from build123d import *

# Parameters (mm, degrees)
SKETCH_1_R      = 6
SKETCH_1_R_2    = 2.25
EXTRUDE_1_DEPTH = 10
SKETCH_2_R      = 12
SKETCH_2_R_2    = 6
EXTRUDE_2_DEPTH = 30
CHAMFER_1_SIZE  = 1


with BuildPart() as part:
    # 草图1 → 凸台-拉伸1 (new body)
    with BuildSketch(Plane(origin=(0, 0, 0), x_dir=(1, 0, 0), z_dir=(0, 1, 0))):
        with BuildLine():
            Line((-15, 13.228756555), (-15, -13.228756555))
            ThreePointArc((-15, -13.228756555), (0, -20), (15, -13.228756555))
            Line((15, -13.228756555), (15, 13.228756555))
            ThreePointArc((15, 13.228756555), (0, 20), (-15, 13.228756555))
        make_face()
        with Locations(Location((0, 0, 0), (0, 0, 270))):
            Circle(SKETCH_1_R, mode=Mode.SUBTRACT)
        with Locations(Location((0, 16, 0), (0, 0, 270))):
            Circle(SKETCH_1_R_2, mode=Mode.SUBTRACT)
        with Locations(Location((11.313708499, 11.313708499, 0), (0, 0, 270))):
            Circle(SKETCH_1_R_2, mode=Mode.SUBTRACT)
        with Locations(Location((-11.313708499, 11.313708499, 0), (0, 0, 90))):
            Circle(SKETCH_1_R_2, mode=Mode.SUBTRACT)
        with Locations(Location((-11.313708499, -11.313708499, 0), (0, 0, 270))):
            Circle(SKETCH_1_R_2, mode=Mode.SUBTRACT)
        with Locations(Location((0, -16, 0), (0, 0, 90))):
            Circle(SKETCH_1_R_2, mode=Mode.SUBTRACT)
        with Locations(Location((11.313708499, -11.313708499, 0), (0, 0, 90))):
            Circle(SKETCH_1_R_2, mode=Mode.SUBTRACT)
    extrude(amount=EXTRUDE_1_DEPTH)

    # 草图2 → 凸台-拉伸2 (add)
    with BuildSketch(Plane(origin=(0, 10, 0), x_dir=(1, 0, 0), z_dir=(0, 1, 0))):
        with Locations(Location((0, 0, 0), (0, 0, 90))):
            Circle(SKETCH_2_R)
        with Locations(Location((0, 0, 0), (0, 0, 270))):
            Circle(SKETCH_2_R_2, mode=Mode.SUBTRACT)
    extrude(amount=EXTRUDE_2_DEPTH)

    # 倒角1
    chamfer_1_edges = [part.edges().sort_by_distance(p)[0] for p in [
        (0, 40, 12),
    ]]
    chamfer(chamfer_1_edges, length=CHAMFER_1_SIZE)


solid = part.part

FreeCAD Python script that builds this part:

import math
import FreeCAD as App
import Part
import Sketcher
from FreeCAD import Vector


def edges_at(feature, points):
    """Names of the edges that pass closest to the given points."""
    edges = feature.Shape.Edges
    near = lambda p: min(range(len(edges)), key=lambda i: edges[i].distToShape(Part.Vertex(*p))[0])
    return sorted({f"Edge{near(p) + 1}" for p in points})

doc = App.newDocument("Part")
body = doc.addObject("PartDesign::Body", "Body")

sketch1 = body.newObject("Sketcher::SketchObject", "Sketch")
sketch1.AttachmentSupport = (doc.getObject("XZ_Plane"), [""])
sketch1.MapMode = "FlatFace"
sketch1.addGeometry(Part.LineSegment(Vector(-15, -13.228757, 0), Vector(-15, 13.228757, 0)), False)
sketch1.addGeometry(Part.ArcOfCircle(Part.Circle(Vector(0, 0, 0), Vector(0, 0, 1), 20), math.radians(41.409622), math.radians(138.590378)), False)
sketch1.addGeometry(Part.LineSegment(Vector(15, 13.228757, 0), Vector(15, -13.228757, 0)), False)
sketch1.addGeometry(Part.ArcOfCircle(Part.Circle(Vector(0, 0, 0), Vector(0, 0, 1), 20), math.radians(-138.590378), math.radians(-41.409622)), False)
sketch1.addGeometry(Part.Circle(Vector(-11.313708, 11.313708, 0), Vector(0, 0, 1), 2.25), False)
sketch1.addGeometry(Part.Circle(Vector(0, 16, 0), Vector(0, 0, 1), 2.25), False)
sketch1.addGeometry(Part.Circle(Vector(11.313708, 11.313708, 0), Vector(0, 0, 1), 2.25), False)
sketch1.addGeometry(Part.Circle(Vector(0, 0, 0), Vector(0, 0, 1), 6), False)
sketch1.addGeometry(Part.Circle(Vector(-11.313708, -11.313708, 0), Vector(0, 0, 1), 2.25), False)
sketch1.addGeometry(Part.Circle(Vector(0, -16, 0), Vector(0, 0, 1), 2.25), False)
sketch1.addGeometry(Part.Circle(Vector(11.313708, -11.313708, 0), Vector(0, 0, 1), 2.25), False)
sketch1.addConstraint(Sketcher.Constraint("Coincident", 0, 2, 1, 2))
sketch1.addConstraint(Sketcher.Constraint("Coincident", 1, 1, 2, 1))
sketch1.addConstraint(Sketcher.Constraint("Coincident", 2, 2, 3, 2))
sketch1.addConstraint(Sketcher.Constraint("Coincident", 3, 1, 0, 1))
sketch1.addConstraint(Sketcher.Constraint("Vertical", 0))
sketch1.addConstraint(Sketcher.Constraint("Vertical", 2))
sketch1.addConstraint(Sketcher.Constraint("Coincident", 1, 3, -1, 1))
sketch1.addConstraint(Sketcher.Constraint("Coincident", 3, 3, -1, 1))
sketch1.addConstraint(Sketcher.Constraint("Coincident", 7, 3, -1, 1))
sketch1.addConstraint(Sketcher.Constraint("Equal", 1, 3))
sketch1.addConstraint(Sketcher.Constraint("Equal", 4, 5))
sketch1.addConstraint(Sketcher.Constraint("Equal", 5, 6))
sketch1.addConstraint(Sketcher.Constraint("Equal", 6, 8))
sketch1.addConstraint(Sketcher.Constraint("Equal", 8, 9))
sketch1.addConstraint(Sketcher.Constraint("Equal", 9, 10))
sketch1.addConstraint(Sketcher.Constraint("Symmetric", 6, 3, 8, 3, -1, 1))
sketch1.addConstraint(Sketcher.Constraint("Symmetric", 5, 3, 9, 3, -1, 1))
sketch1.addConstraint(Sketcher.Constraint("Symmetric", 4, 3, 10, 3, -1, 1))
sketch1.addConstraint(Sketcher.Constraint("Symmetric", 4, 3, 6, 3, -2))
sketch1.addConstraint(Sketcher.Constraint("PointOnObject", 5, 3, -2))
sketch1.addConstraint(Sketcher.Constraint("Horizontal", 0, 2, 1, 1))
sketch1.addConstraint(Sketcher.Constraint("Diameter", 7, 12.0))
sketch1.addConstraint(Sketcher.Constraint("Radius", 1, 20.0))
sketch1.addConstraint(Sketcher.Constraint("Diameter", 4, 4.5))
sketch1.addConstraint(Sketcher.Constraint("DistanceY", -1, 1, 5, 3, 16.0))
sketch1.addConstraint(Sketcher.Constraint("DistanceX", 0, 2, -1, 1, 15.0))
sketch1.addConstraint(Sketcher.Constraint("DistanceX", 4, 3, -1, 1, 11.313708))
sketch1.addConstraint(Sketcher.Constraint("DistanceY", -1, 1, 4, 3, 11.313708))
pad1 = body.newObject("PartDesign::Pad", "Pad")
pad1.Profile = sketch1
pad1.Length = 10
pad1.Reversed = True

sketch2 = body.newObject("Sketcher::SketchObject", "Sketch001")
sketch2.AttachmentSupport = (doc.getObject("XZ_Plane"), [""])
sketch2.MapMode = "FlatFace"
sketch2.AttachmentOffset = App.Placement(Vector(0, 0, -10), App.Rotation())
sketch2.addGeometry(Part.Circle(Vector(0, 0, 0), Vector(0, 0, 1), 12), False)
sketch2.addGeometry(Part.Circle(Vector(0, 0, 0), Vector(0, 0, 1), 6), False)
sketch2.addConstraint(Sketcher.Constraint("Coincident", 0, 3, -1, 1))
sketch2.addConstraint(Sketcher.Constraint("Coincident", 1, 3, -1, 1))
sketch2.addConstraint(Sketcher.Constraint("Diameter", 0, 24.0))
sketch2.addConstraint(Sketcher.Constraint("Diameter", 1, 12.0))
pad2 = body.newObject("PartDesign::Pad", "Pad001")
pad2.Profile = sketch2
pad2.Length = 30
pad2.Reversed = True
doc.recompute()

chamfer = body.newObject("PartDesign::Chamfer", "Chamfer")
chamfer.Base = (pad2, edges_at(pad2, [(0, 40, 12)]))
chamfer.Size = 1

doc.recompute()
